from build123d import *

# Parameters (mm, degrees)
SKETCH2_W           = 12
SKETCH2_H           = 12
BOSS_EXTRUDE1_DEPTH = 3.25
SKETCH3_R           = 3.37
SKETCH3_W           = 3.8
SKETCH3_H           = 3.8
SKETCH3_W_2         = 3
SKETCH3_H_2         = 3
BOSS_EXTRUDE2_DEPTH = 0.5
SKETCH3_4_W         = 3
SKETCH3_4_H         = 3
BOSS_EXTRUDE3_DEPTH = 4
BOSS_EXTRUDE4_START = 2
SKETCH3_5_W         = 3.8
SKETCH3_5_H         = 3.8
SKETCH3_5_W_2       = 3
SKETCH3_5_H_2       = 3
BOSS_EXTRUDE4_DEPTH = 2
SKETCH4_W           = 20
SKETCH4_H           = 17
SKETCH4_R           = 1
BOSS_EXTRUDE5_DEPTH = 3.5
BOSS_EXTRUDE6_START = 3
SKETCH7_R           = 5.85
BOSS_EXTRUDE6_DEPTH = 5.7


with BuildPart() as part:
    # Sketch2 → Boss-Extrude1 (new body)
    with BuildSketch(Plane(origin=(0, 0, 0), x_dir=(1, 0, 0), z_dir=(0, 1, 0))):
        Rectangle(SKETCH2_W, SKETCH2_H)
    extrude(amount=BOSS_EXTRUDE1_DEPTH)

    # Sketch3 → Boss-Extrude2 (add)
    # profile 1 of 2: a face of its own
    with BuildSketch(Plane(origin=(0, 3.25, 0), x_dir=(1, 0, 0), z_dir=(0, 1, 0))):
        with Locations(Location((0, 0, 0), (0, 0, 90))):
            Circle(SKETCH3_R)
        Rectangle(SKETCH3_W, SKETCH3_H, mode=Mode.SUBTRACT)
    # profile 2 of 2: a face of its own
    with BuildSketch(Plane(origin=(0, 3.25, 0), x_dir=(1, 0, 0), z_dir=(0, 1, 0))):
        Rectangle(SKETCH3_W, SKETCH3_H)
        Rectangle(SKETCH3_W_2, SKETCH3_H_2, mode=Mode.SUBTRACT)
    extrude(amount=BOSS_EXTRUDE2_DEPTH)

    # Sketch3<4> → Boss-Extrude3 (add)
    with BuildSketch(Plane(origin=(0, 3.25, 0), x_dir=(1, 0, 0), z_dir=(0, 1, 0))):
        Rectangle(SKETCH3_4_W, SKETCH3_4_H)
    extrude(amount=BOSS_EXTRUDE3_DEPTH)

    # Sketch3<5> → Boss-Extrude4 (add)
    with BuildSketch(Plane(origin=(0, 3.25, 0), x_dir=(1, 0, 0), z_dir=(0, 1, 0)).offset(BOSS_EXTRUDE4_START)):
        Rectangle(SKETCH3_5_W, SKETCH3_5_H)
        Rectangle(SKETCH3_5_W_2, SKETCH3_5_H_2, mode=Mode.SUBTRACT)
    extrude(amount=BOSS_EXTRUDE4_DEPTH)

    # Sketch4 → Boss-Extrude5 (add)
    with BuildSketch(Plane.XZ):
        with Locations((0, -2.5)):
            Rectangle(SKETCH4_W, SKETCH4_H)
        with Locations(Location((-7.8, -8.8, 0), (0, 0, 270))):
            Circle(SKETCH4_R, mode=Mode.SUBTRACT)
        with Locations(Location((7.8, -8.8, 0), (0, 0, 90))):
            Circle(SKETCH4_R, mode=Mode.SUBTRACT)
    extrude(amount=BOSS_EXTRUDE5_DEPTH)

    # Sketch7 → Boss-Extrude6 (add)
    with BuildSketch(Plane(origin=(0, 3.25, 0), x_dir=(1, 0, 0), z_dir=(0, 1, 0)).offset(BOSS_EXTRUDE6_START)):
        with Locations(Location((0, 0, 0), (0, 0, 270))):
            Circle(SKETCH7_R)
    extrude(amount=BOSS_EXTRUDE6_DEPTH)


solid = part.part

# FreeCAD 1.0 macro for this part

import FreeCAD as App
import Part
import Sketcher
from FreeCAD import Vector
Q = App.Units.Quantity

doc = App.newDocument("Part")
body = doc.addObject("PartDesign::Body", "Body")

# Sketch on XZ plane
sketch1 = doc.addObject("Sketcher::SketchObject", "Sketch")
body.addObject(sketch1)
sketch1.AttachmentSupport = (doc.XZ_Plane, [""])
sketch1.MapMode = "FlatFace"
sketch1.addGeometry([
    Part.LineSegment(Vector(-6, -6, 0), Vector(-6, 6, 0)),
    Part.LineSegment(Vector(-6, 6, 0), Vector(6, 6, 0)),
    Part.LineSegment(Vector(6, 6, 0), Vector(6, -6, 0)),
    Part.LineSegment(Vector(6, -6, 0), Vector(-6, -6, 0)),
], False)
sketch1.addConstraint([
    Sketcher.Constraint("Coincident", 0, 2, 1, 1),
    Sketcher.Constraint("Coincident", 1, 2, 2, 1),
    Sketcher.Constraint("Coincident", 2, 2, 3, 1),
    Sketcher.Constraint("Coincident", 3, 2, 0, 1),
    Sketcher.Constraint("Vertical", 0),
    Sketcher.Constraint("Horizontal", 1),
    Sketcher.Constraint("Vertical", 2),
    Sketcher.Constraint("Horizontal", 3),
    Sketcher.Constraint("Symmetric", 0, 2, 2, 2, -1, 1),
    Sketcher.Constraint("Equal", 3, 0),
    Sketcher.Constraint("DistanceX", 1, 1, 1, 2, Q("12 mm")),
])
pad1 = doc.addObject("PartDesign::Pad", "Pad")
body.addObject(pad1)
pad1.Profile = sketch1
pad1.Length = 3.25
pad1.Reversed = True

# Sketch on XZ plane
sketch2 = doc.addObject("Sketcher::SketchObject", "Sketch001")
body.addObject(sketch2)
sketch2.AttachmentSupport = (doc.XZ_Plane, [""])
sketch2.MapMode = "FlatFace"
sketch2.AttachmentOffset = App.Placement(Vector(0, 0, -3.25), App.Rotation())
sketch2.addGeometry([
    Part.Circle(Vector(0, 0, 0), Vector(0, 0, 1), 3.4),  # 0
    Part.LineSegment(Vector(1.5, 1.5, 0), Vector(-1.5, 1.5, 0)),  # 1
    Part.LineSegment(Vector(-1.5, 1.5, 0), Vector(-1.5, -1.5, 0)),  # 2
    Part.LineSegment(Vector(-1.5, -1.5, 0), Vector(1.5, -1.5, 0)),  # 3
    Part.LineSegment(Vector(1.5, -1.5, 0), Vector(1.5, 1.5, 0)),  # 4
], False)
sketch2.addConstraint([
    Sketcher.Constraint("Coincident", 1, 2, 2, 1),
    Sketcher.Constraint("Coincident", 2, 2, 3, 1),
    Sketcher.Constraint("Coincident", 3, 2, 4, 1),
    Sketcher.Constraint("Coincident", 4, 2, 1, 1),
    Sketcher.Constraint("Horizontal", 1),
    Sketcher.Constraint("Vertical", 2),
    Sketcher.Constraint("Horizontal", 3),
    Sketcher.Constraint("Vertical", 4),
    Sketcher.Constraint("Coincident", 0, 3, -1, 1),
    Sketcher.Constraint("Symmetric", 1, 2, 3, 2, -1, 1),
    Sketcher.Constraint("Equal", 3, 2),
    Sketcher.Constraint("Diameter", 0, Q("6.74 mm")),
    Sketcher.Constraint("DistanceX", 1, 2, 1, 1, Q("3 mm")),
])
pad2 = doc.addObject("PartDesign::Pad", "Pad001")
body.addObject(pad2)
pad2.Profile = sketch2
pad2.Length = 0.5
pad2.Reversed = True

# Sketch on XZ plane
sketch3 = doc.addObject("Sketcher::SketchObject", "Sketch002")
body.addObject(sketch3)
sketch3.AttachmentSupport = (doc.XZ_Plane, [""])
sketch3.MapMode = "FlatFace"
sketch3.AttachmentOffset = App.Placement(Vector(0, 0, -3.25), App.Rotation())
sketch3.addGeometry([
    Part.LineSegment(Vector(-1.5, -1.5, 0), Vector(-1.5, 1.5, 0)),
    Part.LineSegment(Vector(-1.5, 1.5, 0), Vector(1.5, 1.5, 0)),
    Part.LineSegment(Vector(1.5, 1.5, 0), Vector(1.5, -1.5, 0)),
    Part.LineSegment(Vector(1.5, -1.5, 0), Vector(-1.5, -1.5, 0)),
], False)
sketch3.addConstraint([
    Sketcher.Constraint("Coincident", 0, 2, 1, 1),
    Sketcher.Constraint("Coincident", 1, 2, 2, 1),
    Sketcher.Constraint("Coincident", 2, 2, 3, 1),
    Sketcher.Constraint("Coincident", 3, 2, 0, 1),
    Sketcher.Constraint("Vertical", 0),
    Sketcher.Constraint("Horizontal", 1),
    Sketcher.Constraint("Vertical", 2),
    Sketcher.Constraint("Horizontal", 3),
    Sketcher.Constraint("Symmetric", 0, 2, 2, 2, -1, 1),
    Sketcher.Constraint("Equal", 3, 0),
    Sketcher.Constraint("DistanceX", 1, 1, 1, 2, Q("3 mm")),
])
pad3 = doc.addObject("PartDesign::Pad", "Pad002")
body.addObject(pad3)
pad3.Profile = sketch3
pad3.Length = 4
pad3.Reversed = True

# Sketch on XZ plane
sketch4 = doc.addObject("Sketcher::SketchObject", "Sketch003")
body.addObject(sketch4)
sketch4.AttachmentSupport = (doc.XZ_Plane, [""])
sketch4.MapMode = "FlatFace"
sketch4.AttachmentOffset = App.Placement(Vector(0, 0, -5.25), App.Rotation())
sketch4.addGeometry([
    Part.LineSegment(Vector(-1.9, -1.9, 0), Vector(-1.9, 1.9, 0)),  # 0
    Part.LineSegment(Vector(-1.9, 1.9, 0), Vector(1.9, 1.9, 0)),  # 1
    Part.LineSegment(Vector(1.9, 1.9, 0), Vector(1.9, -1.9, 0)),  # 2
    Part.LineSegment(Vector(1.9, -1.9, 0), Vector(-1.9, -1.9, 0)),  # 3
    Part.LineSegment(Vector(1.5, 1.5, 0), Vector(-1.5, 1.5, 0)),  # 4
    Part.LineSegment(Vector(-1.5, 1.5, 0), Vector(-1.5, -1.5, 0)),  # 5
    Part.LineSegment(Vector(-1.5, -1.5, 0), Vector(1.5, -1.5, 0)),  # 6
    Part.LineSegment(Vector(1.5, -1.5, 0), Vector(1.5, 1.5, 0)),  # 7
], False)
sketch4.addConstraint([
    Sketcher.Constraint("Coincident", 0, 2, 1, 1),
    Sketcher.Constraint("Coincident", 1, 2, 2, 1),
    Sketcher.Constraint("Coincident", 2, 2, 3, 1),
    Sketcher.Constraint("Coincident", 3, 2, 0, 1),
    Sketcher.Constraint("Coincident", 4, 2, 5, 1),
    Sketcher.Constraint("Coincident", 5, 2, 6, 1),
    Sketcher.Constraint("Coincident", 6, 2, 7, 1),
    Sketcher.Constraint("Coincident", 7, 2, 4, 1),
    Sketcher.Constraint("Vertical", 0),
    Sketcher.Constraint("Horizontal", 1),
    Sketcher.Constraint("Vertical", 2),
    Sketcher.Constraint("Horizontal", 3),
    Sketcher.Constraint("Horizontal", 4),
    Sketcher.Constraint("Vertical", 5),
    Sketcher.Constraint("Horizontal", 6),
    Sketcher.Constraint("Vertical", 7),
    Sketcher.Constraint("Symmetric", 0, 2, 2, 2, -1, 1),
    Sketcher.Constraint("Symmetric", 4, 2, 6, 2, -1, 1),
    Sketcher.Constraint("Equal", 3, 0),
    Sketcher.Constraint("Equal", 6, 5),
    Sketcher.Constraint("DistanceX", 4, 2, 4, 1, Q("3 mm")),
    Sketcher.Constraint("DistanceX", 1, 1, 1, 2, Q("3.8 mm")),
])
pad4 = doc.addObject("PartDesign::Pad", "Pad003")
body.addObject(pad4)
pad4.Profile = sketch4
pad4.Length = 2
pad4.Reversed = True

# Sketch on XZ plane
sketch5 = doc.addObject("Sketcher::SketchObject", "Sketch004")
body.addObject(sketch5)
sketch5.AttachmentSupport = (doc.XZ_Plane, [""])
sketch5.MapMode = "FlatFace"
sketch5.addGeometry([
    Part.LineSegment(Vector(-10, 6, 0), Vector(-10, -11, 0)),  # 0
    Part.LineSegment(Vector(-10, -11, 0), Vector(10, -11, 0)),  # 1
    Part.LineSegment(Vector(10, -11, 0), Vector(10, 6, 0)),  # 2
    Part.LineSegment(Vector(10, 6, 0), Vector(-10, 6, 0)),  # 3
    Part.Circle(Vector(-7.8, -8.8, 0), Vector(0, 0, 1), 1),  # 4
    Part.Circle(Vector(7.8, -8.8, 0), Vector(0, 0, 1), 1),  # 5
], False)
sketch5.addConstraint([
    Sketcher.Constraint("Coincident", 0, 2, 1, 1),
    Sketcher.Constraint("Coincident", 1, 2, 2, 1),
    Sketcher.Constraint("Coincident", 2, 2, 3, 1),
    Sketcher.Constraint("Coincident", 3, 2, 0, 1),
    Sketcher.Constraint("Vertical", 0),
    Sketcher.Constraint("Horizontal", 1),
    Sketcher.Constraint("Vertical", 2),
    Sketcher.Constraint("Horizontal", 3),
    Sketcher.Constraint("Equal", 4, 5),
    Sketcher.Constraint("Symmetric", 4, 3, 5, 3, -2),
    Sketcher.Constraint("Diameter", 4, Q("2 mm")),
    Sketcher.Constraint("DistanceX", 1, 1, 1, 2, Q("20 mm")),
    Sketcher.Constraint("DistanceY", 0, 2, 0, 1, Q("17 mm")),
    Sketcher.Constraint("DistanceX", 0, 2, -1, 1, Q("10 mm")),
    Sketcher.Constraint("DistanceY", 0, 2, -1, 1, Q("11 mm")),
    Sketcher.Constraint("DistanceX", 4, 3, -1, 1, Q("7.8 mm")),
    Sketcher.Constraint("DistanceY", 4, 3, -1, 1, Q("8.8 mm")),
])
pad5 = doc.addObject("PartDesign::Pad", "Pad004")
body.addObject(pad5)
pad5.Profile = sketch5
pad5.Length = 3.5

# Sketch on XZ plane
sketch6 = doc.addObject("Sketcher::SketchObject", "Sketch005")
body.addObject(sketch6)
sketch6.AttachmentSupport = (doc.XZ_Plane, [""])
sketch6.MapMode = "FlatFace"
sketch6.AttachmentOffset = App.Placement(Vector(0, 0, -6.25), App.Rotation())
sketch6.addGeometry(Part.Circle(Vector(0, 0, 0), Vector(0, 0, 1), 6), False)
sketch6.addConstraint([
    Sketcher.Constraint("Coincident", 0, 3, -1, 1),
    Sketcher.Constraint("Diameter", 0, Q("11.7 mm")),
])
pad6 = doc.addObject("PartDesign::Pad", "Pad005")
body.addObject(pad6)
pad6.Profile = sketch6
pad6.Length = 5.7
pad6.Reversed = True

doc.recompute()
